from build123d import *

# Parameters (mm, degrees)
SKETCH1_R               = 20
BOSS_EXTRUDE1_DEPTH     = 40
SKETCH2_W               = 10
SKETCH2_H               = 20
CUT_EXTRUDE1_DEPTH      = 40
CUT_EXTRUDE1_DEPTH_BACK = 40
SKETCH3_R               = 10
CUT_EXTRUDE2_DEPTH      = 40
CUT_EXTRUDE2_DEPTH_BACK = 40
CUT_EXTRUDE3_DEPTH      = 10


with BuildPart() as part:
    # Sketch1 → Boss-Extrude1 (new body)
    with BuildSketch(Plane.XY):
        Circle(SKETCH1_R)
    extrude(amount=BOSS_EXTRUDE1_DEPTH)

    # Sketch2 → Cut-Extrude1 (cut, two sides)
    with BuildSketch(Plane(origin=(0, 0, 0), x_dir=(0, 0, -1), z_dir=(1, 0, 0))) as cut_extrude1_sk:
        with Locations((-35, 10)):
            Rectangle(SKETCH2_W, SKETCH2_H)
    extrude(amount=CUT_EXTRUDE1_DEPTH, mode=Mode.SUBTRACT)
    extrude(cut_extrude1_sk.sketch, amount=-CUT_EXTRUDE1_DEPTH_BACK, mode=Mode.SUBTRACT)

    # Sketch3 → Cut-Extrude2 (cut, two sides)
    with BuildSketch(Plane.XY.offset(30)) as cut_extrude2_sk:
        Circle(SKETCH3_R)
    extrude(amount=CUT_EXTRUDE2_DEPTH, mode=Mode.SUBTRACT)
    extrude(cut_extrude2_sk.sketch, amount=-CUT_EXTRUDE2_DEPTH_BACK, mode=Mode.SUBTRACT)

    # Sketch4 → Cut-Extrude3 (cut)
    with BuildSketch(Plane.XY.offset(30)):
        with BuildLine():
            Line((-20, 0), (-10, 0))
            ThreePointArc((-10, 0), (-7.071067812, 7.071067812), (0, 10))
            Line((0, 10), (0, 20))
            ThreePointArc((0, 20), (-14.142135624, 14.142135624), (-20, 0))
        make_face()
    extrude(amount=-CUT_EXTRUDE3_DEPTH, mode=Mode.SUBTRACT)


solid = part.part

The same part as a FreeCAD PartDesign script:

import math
import FreeCAD as App
import Part
import Sketcher
from FreeCAD import Vector
Q = App.Units.Quantity


def add_polygon(sketch, points):
    """Adds a closed chain of lines whose ends are joined by coincident constraints."""
    first, n = sketch.GeometryCount, len(points)
    for a, b in zip(points, points[1:] + points[:1]):
        sketch.addGeometry(Part.LineSegment(App.Vector(*a, 0), App.Vector(*b, 0)), False)
    for i in range(n):
        sketch.addConstraint(Sketcher.Constraint("Coincident", first + i, 2, first + (i + 1) % n, 1))

doc = App.newDocument("Part")
body = doc.addObject("PartDesign::Body", "Body")

# Sketch on XY plane
sketch1 = body.newObject("Sketcher::SketchObject", "Sketch")
sketch1.AttachmentSupport = (doc.getObject("XY_Plane"), [""])
sketch1.MapMode = "FlatFace"
sketch1.addGeometry(Part.Circle(Vector(0, 0, 0), Vector(0, 0, 1), 20), False)
sketch1.addConstraint([
    Sketcher.Constraint("Coincident", 0, 3, -1, 1),
    Sketcher.Constraint("Diameter", 0, Q("40 mm")),
])
pad1 = body.newObject("PartDesign::Pad", "Pad")
pad1.Profile = sketch1
pad1.Length = 40

# Sketch on YZ plane
sketch2 = body.newObject("Sketcher::SketchObject", "Sketch001")
sketch2.AttachmentSupport = (doc.getObject("YZ_Plane"), [""])
sketch2.MapMode = "FlatFace"
add_polygon(sketch2, [(20, 40), (0, 40), (0, 30), (20, 30)])  # lines 0-3
sketch2.addConstraint([
    Sketcher.Constraint("Horizontal", 0),
    Sketcher.Constraint("Vertical", 1),
    Sketcher.Constraint("Horizontal", 2),
    Sketcher.Constraint("Vertical", 3),
    Sketcher.Constraint("PointOnObject", 0, 2, -2),
    Sketcher.Constraint("DistanceX", 0, 2, 0, 1, Q("20 mm")),
    Sketcher.Constraint("DistanceY", 1, 2, 1, 1, Q("10 mm")),
    Sketcher.Constraint("DistanceY", -1, 1, 0, 2, Q("40 mm")),
])
pocket1 = body.newObject("PartDesign::Pocket", "Pocket")
pocket1.Profile = sketch2
pocket1.Type = "ThroughAll"
pocket1.Midplane = True

# Sketch on XY plane
sketch3 = body.newObject("Sketcher::SketchObject", "Sketch002")
sketch3.AttachmentSupport = (doc.getObject("XY_Plane"), [""])
sketch3.MapMode = "FlatFace"
sketch3.AttachmentOffset = App.Placement(Vector(0, 0, 30), App.Rotation())
sketch3.addGeometry(Part.Circle(Vector(0, 0, 0), Vector(0, 0, 1), 10), False)
sketch3.addConstraint([
    Sketcher.Constraint("Coincident", 0, 3, -1, 1),
    Sketcher.Constraint("Diameter", 0, Q("20 mm")),
])
pocket2 = body.newObject("PartDesign::Pocket", "Pocket001")
pocket2.Profile = sketch3
pocket2.Type = "ThroughAll"
pocket2.Midplane = True

# Sketch on XY plane
sketch4 = body.newObject("Sketcher::SketchObject", "Sketch003")
sketch4.AttachmentSupport = (doc.getObject("XY_Plane"), [""])
sketch4.MapMode = "FlatFace"
sketch4.AttachmentOffset = App.Placement(Vector(0, 0, 30), App.Rotation())
sketch4.addGeometry([
    Part.LineSegment(Vector(-20, 0, 0), Vector(-10, 0, 0)),
    Part.ArcOfCircle(Part.Circle(Vector(0, 0, 0), Vector(0, 0, 1), 10), math.radians(90), math.radians(180)),
    Part.LineSegment(Vector(0, 10, 0), Vector(0, 20, 0)),
    Part.ArcOfCircle(Part.Circle(Vector(0, 0, 0), Vector(0, 0, 1), 20), math.radians(90), math.radians(180)),
], False)
sketch4.addConstraint([
    Sketcher.Constraint("Coincident", 0, 2, 1, 2),
    Sketcher.Constraint("Coincident", 1, 1, 2, 1),
    Sketcher.Constraint("Coincident", 2, 2, 3, 1),
    Sketcher.Constraint("Coincident", 3, 2, 0, 1),
    Sketcher.Constraint("Horizontal", 0),
    Sketcher.Constraint("Vertical", 2),
    Sketcher.Constraint("Coincident", 1, 3, -1, 1),
    Sketcher.Constraint("Coincident", 3, 3, -1, 1),
    Sketcher.Constraint("PointOnObject", 0, 2, -1),
    Sketcher.Constraint("PointOnObject", 1, 1, -2),
    Sketcher.Constraint("Radius", 1, Q("10 mm")),
    Sketcher.Constraint("Radius", 3, Q("20 mm")),
])
pocket3 = body.newObject("PartDesign::Pocket", "Pocket002")
pocket3.Profile = sketch4
pocket3.Length = 10

doc.recompute()
